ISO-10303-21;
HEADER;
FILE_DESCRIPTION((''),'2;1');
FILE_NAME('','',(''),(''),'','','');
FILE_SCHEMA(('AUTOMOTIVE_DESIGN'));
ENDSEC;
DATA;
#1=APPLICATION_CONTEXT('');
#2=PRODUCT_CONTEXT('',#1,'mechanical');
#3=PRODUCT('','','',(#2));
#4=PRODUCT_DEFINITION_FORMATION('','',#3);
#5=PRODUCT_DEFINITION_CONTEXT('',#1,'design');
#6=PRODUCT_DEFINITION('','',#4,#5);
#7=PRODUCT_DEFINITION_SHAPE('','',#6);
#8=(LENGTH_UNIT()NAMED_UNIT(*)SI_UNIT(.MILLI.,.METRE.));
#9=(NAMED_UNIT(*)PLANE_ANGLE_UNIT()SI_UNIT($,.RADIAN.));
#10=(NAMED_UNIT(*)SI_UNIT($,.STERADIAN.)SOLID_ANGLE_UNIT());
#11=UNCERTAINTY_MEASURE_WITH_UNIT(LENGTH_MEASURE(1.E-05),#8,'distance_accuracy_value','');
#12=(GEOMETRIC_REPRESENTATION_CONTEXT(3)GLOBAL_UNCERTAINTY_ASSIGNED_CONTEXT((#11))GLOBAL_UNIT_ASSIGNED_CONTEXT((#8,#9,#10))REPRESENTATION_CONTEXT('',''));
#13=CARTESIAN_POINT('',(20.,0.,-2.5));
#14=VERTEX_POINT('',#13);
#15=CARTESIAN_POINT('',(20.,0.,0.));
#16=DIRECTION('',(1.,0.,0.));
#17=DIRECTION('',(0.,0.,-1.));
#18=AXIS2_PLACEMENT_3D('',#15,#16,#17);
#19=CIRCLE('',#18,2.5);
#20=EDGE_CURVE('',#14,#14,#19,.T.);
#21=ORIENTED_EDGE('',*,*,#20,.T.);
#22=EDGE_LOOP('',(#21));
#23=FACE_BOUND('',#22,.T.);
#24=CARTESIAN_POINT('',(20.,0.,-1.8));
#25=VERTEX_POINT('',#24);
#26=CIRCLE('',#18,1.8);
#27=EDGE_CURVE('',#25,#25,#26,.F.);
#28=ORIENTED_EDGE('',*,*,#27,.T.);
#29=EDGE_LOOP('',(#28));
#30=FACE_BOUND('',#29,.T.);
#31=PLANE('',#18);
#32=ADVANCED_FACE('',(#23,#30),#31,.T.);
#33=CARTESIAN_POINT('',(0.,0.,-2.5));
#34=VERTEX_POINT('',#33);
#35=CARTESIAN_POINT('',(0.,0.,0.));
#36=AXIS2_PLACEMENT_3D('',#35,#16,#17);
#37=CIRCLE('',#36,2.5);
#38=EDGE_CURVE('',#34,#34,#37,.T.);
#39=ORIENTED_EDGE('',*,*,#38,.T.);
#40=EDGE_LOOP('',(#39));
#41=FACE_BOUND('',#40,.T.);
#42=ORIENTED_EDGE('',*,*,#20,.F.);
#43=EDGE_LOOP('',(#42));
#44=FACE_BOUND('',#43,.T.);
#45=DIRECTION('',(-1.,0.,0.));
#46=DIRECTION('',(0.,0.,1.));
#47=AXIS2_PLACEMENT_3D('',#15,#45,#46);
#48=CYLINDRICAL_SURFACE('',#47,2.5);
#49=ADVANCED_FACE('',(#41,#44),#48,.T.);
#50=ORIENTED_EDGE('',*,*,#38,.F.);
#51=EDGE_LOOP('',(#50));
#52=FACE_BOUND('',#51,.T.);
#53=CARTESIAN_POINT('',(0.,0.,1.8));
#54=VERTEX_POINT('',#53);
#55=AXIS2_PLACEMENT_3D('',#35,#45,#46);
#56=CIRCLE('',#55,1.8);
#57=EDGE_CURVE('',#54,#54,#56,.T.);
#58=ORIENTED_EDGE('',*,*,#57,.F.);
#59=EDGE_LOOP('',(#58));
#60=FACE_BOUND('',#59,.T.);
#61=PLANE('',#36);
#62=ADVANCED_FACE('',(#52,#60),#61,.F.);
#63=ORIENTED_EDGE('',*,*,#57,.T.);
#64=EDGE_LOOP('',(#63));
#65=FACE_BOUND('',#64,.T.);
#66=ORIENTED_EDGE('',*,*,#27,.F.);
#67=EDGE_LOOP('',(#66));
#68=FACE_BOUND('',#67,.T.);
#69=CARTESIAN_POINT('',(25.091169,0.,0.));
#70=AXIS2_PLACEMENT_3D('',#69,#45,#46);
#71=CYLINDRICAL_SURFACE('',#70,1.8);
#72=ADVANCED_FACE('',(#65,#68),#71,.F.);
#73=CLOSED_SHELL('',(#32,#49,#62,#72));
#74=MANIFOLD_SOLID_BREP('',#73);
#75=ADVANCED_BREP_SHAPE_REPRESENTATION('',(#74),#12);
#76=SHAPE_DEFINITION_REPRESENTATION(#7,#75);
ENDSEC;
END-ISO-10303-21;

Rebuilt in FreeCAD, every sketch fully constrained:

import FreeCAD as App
import Part
import Sketcher

V = App.Vector
Q = App.Units.Quantity

doc = App.newDocument("Part")
params = doc.addObject("Spreadsheet::Sheet", "Params")
for row, (alias, value) in enumerate([
    ("sketch1_diameter", "5 mm"),
    ("pad1_length", "20 mm"),
    ("sketch2_diameter", "3.6 mm"),
    ("pocket1_length", "20 mm"),
], start=1):
    params.set(f"A{row}", alias)
    params.set(f"B{row}", "=" + value)
    params.setAlias(f"B{row}", alias)

body = doc.addObject("PartDesign::Body", "Body")

# Sketch on YZ plane
sketch1 = doc.addObject("Sketcher::SketchObject", "Sketch")
body.addObject(sketch1)
sketch1.AttachmentSupport = (doc.YZ_Plane, [""])
sketch1.MapMode = "FlatFace"
sketch1.addGeometry(Part.Circle(V(0, 0, 0), V(0, 0, 1), 2.5), False)
sketch1.addConstraint([
    Sketcher.Constraint("Coincident", 0, 3, -1, 1),
    Sketcher.Constraint("Diameter", 0, Q("5 mm")),
])
sketch1.setExpression("Constraints[1]", "Params.sketch1_diameter")
pad1 = doc.addObject("PartDesign::Pad", "Pad")
body.addObject(pad1)
pad1.Profile = sketch1
pad1.setExpression("Length", "Params.pad1_length")

# Sketch on YZ plane
sketch2 = doc.addObject("Sketcher::SketchObject", "Sketch001")
body.addObject(sketch2)
sketch2.AttachmentSupport = (doc.YZ_Plane, [""])
sketch2.MapMode = "FlatFace"
sketch2.addGeometry(Part.Circle(V(0, 0, 0), V(0, 0, 1), 1.8), False)
sketch2.addConstraint([
    Sketcher.Constraint("Coincident", 0, 3, -1, 1),
    Sketcher.Constraint("Diameter", 0, Q("3.6 mm")),
])
sketch2.setExpression("Constraints[1]", "Params.sketch2_diameter")
pocket1 = doc.addObject("PartDesign::Pocket", "Pocket")
body.addObject(pocket1)
pocket1.Profile = sketch2
pocket1.setExpression("Length", "Params.pocket1_length")
pocket1.Reversed = True

doc.recompute()
